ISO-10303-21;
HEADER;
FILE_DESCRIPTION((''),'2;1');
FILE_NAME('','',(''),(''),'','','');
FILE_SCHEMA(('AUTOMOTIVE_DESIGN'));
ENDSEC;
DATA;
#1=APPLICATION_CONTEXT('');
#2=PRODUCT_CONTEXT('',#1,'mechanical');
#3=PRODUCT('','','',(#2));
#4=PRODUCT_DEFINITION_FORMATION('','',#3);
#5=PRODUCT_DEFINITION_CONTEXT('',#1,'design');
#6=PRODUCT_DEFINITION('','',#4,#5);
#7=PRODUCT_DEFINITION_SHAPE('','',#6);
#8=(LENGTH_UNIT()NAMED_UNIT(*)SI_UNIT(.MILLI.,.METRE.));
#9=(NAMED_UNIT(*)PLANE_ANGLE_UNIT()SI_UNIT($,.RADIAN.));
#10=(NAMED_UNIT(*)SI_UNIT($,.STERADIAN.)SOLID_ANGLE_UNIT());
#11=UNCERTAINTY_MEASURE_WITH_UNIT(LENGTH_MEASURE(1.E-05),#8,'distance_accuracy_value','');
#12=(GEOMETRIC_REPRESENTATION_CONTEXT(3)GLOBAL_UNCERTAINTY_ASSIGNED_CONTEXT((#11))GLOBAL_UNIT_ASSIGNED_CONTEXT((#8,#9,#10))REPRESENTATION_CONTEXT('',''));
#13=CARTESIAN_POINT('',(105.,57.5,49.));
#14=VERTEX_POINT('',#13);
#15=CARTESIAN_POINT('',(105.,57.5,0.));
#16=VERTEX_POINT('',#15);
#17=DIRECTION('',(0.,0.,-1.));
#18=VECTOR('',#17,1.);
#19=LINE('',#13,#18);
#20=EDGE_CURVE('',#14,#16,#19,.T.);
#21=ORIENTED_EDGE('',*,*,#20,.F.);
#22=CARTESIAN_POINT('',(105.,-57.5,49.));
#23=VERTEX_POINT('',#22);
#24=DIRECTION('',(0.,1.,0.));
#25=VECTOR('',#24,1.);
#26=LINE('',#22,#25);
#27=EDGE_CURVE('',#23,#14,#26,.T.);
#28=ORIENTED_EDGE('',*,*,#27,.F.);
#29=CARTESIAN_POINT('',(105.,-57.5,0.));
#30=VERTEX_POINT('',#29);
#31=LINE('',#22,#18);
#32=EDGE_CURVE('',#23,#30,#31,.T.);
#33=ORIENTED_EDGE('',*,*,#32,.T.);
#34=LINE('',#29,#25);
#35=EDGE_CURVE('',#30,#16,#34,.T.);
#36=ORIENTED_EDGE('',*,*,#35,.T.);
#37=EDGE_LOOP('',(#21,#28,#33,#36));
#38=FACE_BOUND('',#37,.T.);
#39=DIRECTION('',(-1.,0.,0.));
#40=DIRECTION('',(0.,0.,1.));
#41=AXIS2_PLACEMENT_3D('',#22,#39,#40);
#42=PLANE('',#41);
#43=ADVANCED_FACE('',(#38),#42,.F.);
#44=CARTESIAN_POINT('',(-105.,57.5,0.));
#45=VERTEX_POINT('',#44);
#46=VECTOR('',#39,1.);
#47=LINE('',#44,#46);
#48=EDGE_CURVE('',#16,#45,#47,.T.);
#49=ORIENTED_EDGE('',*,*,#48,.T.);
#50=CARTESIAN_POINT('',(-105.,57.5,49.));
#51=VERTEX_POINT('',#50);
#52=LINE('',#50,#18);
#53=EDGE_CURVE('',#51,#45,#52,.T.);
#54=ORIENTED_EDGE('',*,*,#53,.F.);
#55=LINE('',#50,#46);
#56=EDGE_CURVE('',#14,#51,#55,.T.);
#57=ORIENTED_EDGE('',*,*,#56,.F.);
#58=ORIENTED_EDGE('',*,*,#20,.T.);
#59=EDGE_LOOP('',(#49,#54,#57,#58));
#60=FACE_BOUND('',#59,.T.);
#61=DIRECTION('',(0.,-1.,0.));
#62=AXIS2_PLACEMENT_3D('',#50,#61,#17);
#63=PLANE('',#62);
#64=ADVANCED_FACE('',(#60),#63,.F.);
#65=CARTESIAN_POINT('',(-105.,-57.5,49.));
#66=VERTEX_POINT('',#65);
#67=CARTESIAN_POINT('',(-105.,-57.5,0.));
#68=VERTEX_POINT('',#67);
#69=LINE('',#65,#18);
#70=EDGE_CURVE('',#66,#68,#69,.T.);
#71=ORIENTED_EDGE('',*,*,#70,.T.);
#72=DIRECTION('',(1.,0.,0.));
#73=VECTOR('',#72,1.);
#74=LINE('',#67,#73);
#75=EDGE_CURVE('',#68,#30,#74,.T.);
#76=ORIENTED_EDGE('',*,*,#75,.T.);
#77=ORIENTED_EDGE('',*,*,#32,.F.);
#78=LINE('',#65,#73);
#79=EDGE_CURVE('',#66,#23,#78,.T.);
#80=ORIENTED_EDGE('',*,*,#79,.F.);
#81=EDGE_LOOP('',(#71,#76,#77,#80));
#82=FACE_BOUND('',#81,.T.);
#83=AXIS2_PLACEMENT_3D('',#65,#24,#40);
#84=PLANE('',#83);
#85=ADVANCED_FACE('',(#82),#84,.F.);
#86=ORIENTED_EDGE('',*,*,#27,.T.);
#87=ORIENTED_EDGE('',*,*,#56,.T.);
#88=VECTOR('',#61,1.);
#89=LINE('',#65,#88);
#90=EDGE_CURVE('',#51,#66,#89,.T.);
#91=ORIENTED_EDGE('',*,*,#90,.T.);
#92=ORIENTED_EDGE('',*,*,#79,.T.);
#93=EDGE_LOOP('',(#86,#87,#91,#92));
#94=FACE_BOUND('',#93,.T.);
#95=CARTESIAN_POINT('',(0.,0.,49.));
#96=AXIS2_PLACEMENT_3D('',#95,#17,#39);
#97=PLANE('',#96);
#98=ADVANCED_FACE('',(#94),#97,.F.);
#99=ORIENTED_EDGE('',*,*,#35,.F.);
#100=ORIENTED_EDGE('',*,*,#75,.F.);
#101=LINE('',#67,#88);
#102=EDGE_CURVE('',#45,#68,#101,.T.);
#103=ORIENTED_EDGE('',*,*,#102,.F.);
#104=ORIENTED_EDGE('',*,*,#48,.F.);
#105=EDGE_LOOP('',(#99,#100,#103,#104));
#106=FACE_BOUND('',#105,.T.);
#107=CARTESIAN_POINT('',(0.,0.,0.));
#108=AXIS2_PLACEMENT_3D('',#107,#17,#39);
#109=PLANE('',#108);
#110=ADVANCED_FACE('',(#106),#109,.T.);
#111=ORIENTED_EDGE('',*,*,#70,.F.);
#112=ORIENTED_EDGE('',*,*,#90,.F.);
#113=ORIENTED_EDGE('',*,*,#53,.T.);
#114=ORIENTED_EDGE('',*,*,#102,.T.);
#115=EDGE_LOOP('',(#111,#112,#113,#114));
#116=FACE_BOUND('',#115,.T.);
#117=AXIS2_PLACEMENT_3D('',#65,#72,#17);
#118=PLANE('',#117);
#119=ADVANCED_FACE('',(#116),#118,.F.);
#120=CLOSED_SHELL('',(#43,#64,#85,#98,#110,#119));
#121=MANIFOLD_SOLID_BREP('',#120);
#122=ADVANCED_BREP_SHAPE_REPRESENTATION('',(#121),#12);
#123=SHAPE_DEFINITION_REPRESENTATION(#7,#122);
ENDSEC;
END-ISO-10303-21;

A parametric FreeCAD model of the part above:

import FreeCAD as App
import Part
import Sketcher


def add_polygon(sketch, points):
    """Adds a closed chain of lines whose ends are joined by coincident constraints."""
    first, n = sketch.GeometryCount, len(points)
    for a, b in zip(points, points[1:] + points[:1]):
        sketch.addGeometry(Part.LineSegment(App.Vector(*a, 0), App.Vector(*b, 0)), False)
    for i in range(n):
        sketch.addConstraint(Sketcher.Constraint("Coincident", first + i, 2, first + (i + 1) % n, 1))

doc = App.newDocument("Part")
body = doc.addObject("PartDesign::Body", "Body")

sketch1 = body.newObject("Sketcher::SketchObject", "Sketch")
sketch1.AttachmentSupport = (doc.getObject("XY_Plane"), [""])
sketch1.MapMode = "FlatFace"
add_polygon(sketch1, [(-105, 58), (-105, -58), (105, -58), (105, 58)])
sketch1.addConstraint(Sketcher.Constraint("Vertical", 0))
sketch1.addConstraint(Sketcher.Constraint("Horizontal", 1))
sketch1.addConstraint(Sketcher.Constraint("Vertical", 2))
sketch1.addConstraint(Sketcher.Constraint("Horizontal", 3))
sketch1.addConstraint(Sketcher.Constraint("Symmetric", 0, 2, 2, 2, -1, 1))
sketch1.addConstraint(Sketcher.Constraint("DistanceX", 1, 1, 1, 2, 210.0))
sketch1.addConstraint(Sketcher.Constraint("DistanceY", 0, 2, 0, 1, 115.0))
pad1 = body.newObject("PartDesign::Pad", "Pad")
pad1.Profile = sketch1
pad1.Length = 49

doc.recompute()
